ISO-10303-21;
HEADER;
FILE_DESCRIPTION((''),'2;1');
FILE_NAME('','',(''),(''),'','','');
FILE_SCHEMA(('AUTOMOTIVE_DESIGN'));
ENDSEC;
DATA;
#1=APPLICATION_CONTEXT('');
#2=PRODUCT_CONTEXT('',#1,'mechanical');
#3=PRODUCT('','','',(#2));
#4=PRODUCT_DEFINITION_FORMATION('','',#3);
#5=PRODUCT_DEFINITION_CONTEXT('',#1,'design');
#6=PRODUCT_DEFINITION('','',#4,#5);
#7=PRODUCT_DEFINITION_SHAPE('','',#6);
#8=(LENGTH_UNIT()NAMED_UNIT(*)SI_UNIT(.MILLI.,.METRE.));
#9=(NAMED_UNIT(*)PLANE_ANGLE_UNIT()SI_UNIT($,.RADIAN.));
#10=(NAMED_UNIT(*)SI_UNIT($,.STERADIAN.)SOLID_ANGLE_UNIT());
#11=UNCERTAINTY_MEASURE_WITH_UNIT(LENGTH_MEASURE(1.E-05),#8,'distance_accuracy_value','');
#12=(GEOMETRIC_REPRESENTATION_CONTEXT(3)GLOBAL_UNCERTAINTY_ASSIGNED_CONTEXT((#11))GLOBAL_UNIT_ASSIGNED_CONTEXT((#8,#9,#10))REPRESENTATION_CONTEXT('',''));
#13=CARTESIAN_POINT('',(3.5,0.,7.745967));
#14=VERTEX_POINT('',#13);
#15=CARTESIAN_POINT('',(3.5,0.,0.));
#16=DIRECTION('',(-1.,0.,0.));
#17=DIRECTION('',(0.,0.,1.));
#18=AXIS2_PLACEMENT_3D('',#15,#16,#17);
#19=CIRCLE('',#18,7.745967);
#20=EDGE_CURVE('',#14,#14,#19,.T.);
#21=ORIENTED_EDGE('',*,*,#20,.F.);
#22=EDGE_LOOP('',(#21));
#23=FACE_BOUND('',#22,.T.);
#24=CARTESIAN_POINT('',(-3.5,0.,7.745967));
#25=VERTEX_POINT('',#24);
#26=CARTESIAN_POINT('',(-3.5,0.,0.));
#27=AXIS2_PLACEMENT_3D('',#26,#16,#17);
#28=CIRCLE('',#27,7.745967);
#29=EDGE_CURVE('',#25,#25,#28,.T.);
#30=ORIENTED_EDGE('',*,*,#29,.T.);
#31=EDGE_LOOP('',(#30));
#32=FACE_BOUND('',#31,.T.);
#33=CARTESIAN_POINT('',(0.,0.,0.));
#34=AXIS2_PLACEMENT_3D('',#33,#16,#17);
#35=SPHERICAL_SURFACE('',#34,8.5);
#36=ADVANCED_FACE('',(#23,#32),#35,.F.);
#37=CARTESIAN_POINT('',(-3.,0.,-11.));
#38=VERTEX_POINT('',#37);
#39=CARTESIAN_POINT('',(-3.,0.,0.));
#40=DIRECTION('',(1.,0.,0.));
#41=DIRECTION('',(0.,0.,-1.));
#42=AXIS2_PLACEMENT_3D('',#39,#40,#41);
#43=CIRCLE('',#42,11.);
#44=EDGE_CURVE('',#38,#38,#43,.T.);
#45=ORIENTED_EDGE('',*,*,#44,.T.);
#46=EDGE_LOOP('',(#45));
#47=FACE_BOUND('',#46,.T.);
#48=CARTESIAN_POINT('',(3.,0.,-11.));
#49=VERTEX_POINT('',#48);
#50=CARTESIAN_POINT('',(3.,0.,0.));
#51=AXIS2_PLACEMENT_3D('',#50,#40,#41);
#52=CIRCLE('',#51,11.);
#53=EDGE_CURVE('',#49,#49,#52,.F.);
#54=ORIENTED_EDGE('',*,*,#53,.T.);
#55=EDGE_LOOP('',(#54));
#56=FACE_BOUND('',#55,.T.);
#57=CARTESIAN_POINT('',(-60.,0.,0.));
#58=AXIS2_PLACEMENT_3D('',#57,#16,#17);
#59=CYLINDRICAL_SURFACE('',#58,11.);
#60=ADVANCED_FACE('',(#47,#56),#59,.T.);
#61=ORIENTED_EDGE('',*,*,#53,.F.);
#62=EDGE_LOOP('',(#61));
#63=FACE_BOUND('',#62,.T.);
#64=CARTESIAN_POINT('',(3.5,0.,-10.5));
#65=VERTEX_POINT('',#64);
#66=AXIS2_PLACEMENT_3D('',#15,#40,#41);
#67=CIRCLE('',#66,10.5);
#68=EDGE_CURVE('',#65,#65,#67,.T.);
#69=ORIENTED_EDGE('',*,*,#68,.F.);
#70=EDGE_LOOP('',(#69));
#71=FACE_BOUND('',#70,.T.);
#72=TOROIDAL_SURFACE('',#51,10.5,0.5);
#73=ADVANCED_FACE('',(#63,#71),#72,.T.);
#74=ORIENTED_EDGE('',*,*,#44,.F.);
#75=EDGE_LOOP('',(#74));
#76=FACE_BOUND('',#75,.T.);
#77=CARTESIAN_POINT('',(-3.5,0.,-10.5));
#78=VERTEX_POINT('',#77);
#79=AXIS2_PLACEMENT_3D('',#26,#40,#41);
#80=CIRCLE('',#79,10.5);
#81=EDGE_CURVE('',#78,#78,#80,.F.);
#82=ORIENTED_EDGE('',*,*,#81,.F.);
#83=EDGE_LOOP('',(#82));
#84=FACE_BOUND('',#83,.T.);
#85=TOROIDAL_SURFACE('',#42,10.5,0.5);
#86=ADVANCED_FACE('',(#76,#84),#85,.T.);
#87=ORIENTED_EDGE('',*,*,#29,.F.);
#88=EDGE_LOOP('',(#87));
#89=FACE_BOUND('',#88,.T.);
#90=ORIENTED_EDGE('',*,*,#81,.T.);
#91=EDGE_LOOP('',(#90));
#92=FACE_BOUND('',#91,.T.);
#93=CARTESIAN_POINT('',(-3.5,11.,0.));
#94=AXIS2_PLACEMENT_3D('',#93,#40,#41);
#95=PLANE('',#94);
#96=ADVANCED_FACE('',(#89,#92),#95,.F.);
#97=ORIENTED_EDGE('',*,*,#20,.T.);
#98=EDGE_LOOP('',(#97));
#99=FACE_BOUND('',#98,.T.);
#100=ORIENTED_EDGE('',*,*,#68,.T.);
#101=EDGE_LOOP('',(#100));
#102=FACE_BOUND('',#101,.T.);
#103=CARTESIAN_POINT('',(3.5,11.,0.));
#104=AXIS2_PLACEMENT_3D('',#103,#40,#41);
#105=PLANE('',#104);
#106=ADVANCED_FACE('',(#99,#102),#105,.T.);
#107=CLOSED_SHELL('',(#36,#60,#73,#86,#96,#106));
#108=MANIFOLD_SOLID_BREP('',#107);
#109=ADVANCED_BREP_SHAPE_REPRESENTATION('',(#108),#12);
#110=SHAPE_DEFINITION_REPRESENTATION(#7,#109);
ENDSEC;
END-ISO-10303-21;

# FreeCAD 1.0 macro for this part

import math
import FreeCAD as App
import Part
import Sketcher
from FreeCAD import Vector
Q = App.Units.Quantity


def edges_at(feature, points):
    """Names of the edges that pass closest to the given points."""
    edges = feature.Shape.Edges
    near = lambda p: min(range(len(edges)), key=lambda i: edges[i].distToShape(Part.Vertex(*p))[0])
    return sorted({f"Edge{near(p) + 1}" for p in points})

doc = App.newDocument("Part")
params = doc.addObject("Spreadsheet::Sheet", "Params")
for row, (alias, value) in enumerate([
    ("sketch1_radius", "8.5 mm"),
    ("sketch1_width", "7 mm"),
    ("revolution_angle", "360 deg"),
    ("fillet_radius", "0.5 mm"),
], start=1):
    params.set(f"A{row}", alias)
    params.set(f"B{row}", "=" + value)
    params.setAlias(f"B{row}", alias)

body = doc.addObject("PartDesign::Body", "Body")

# Sketch on XY plane
sketch1 = body.newObject("Sketcher::SketchObject", "Sketch")
sketch1.AttachmentSupport = (doc.getObject("XY_Plane"), [""])
sketch1.MapMode = "FlatFace"
sketch1.addGeometry(Part.LineSegment(Vector(-3.5, 11, 0), Vector(-3.5, 7.7, 0)), False)
sketch1.addGeometry(Part.ArcOfCircle(Part.Circle(Vector(0, 0, 0), Vector(0, 0, 1), 8.5), math.radians(66), math.radians(114)), False)
sketch1.addGeometry(Part.LineSegment(Vector(3.5, 7.7, 0), Vector(3.5, 11, 0)), False)
sketch1.addGeometry(Part.LineSegment(Vector(3.5, 11, 0), Vector(-3.5, 11, 0)), False)
sketch1.addConstraint(Sketcher.Constraint("Coincident", 0, 2, 1, 2))
sketch1.addConstraint(Sketcher.Constraint("Coincident", 1, 1, 2, 1))
sketch1.addConstraint(Sketcher.Constraint("Coincident", 2, 2, 3, 1))
sketch1.addConstraint(Sketcher.Constraint("Coincident", 3, 2, 0, 1))
sketch1.addConstraint(Sketcher.Constraint("Vertical", 0))
sketch1.addConstraint(Sketcher.Constraint("Vertical", 2))
sketch1.addConstraint(Sketcher.Constraint("Horizontal", 3))
sketch1.addConstraint(Sketcher.Constraint("Coincident", 1, 3, -1, 1))
sketch1.addConstraint(Sketcher.Constraint("Horizontal", 0, 2, 1, 1))
sketch1.addConstraint(Sketcher.Constraint("Radius", 1, Q("8.5 mm")))
sketch1.addConstraint(Sketcher.Constraint("DistanceX", 3, 2, 3, 1, Q("7 mm")))
sketch1.addConstraint(Sketcher.Constraint("DistanceY", -1, 1, 2, 2, Q("11 mm")))
sketch1.setExpression("Constraints[9]", "Params.sketch1_radius")
sketch1.setExpression("Constraints[10]", "Params.sketch1_width")
revolution = body.newObject("PartDesign::Revolution", "Revolution")
revolution.Profile = sketch1
revolution.ReferenceAxis = (sketch1, ["H_Axis"])
revolution.setExpression("Angle", "Params.revolution_angle")
doc.recompute()

fillet = body.newObject("PartDesign::Fillet", "Fillet")
fillet.Base = (revolution, edges_at(revolution, [(3.5, 0, 11), (-3.5, 0, 11)]))
fillet.setExpression("Radius", "Params.fillet_radius")

doc.recompute()
